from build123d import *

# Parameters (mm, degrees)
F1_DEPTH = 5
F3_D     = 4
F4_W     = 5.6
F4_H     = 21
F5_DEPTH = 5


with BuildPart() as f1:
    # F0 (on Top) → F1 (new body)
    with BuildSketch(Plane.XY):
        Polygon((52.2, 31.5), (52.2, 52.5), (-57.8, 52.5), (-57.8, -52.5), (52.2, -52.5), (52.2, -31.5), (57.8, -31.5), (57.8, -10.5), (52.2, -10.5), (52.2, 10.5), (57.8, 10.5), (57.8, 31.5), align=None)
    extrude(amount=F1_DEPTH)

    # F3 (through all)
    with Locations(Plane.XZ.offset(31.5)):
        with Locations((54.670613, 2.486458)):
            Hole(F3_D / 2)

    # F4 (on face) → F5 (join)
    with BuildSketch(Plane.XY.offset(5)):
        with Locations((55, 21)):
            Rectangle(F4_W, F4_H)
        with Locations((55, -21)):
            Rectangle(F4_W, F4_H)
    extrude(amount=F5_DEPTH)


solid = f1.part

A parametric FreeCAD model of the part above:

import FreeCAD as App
import Part
import Sketcher

V = App.Vector
Q = App.Units.Quantity

doc = App.newDocument("Part")
params = doc.addObject("Spreadsheet::Sheet", "Params")
for row, (alias, value) in enumerate([
    ("sketch1_width", "110 mm"),
    ("sketch1_height", "21 mm"),
    ("sketch1_width2", "5.6 mm"),
    ("pad1_length", "5 mm"),
    ("sketch2_diameter", "4 mm"),
    ("hole_diameter", "4 mm"),
    ("sketch3_height", "21 mm"),
    ("sketch3_width", "5.6 mm"),
    ("pad2_length", "5 mm"),
], start=1):
    params.set(f"A{row}", alias)
    params.set(f"B{row}", "=" + value)
    params.setAlias(f"B{row}", alias)

body = doc.addObject("PartDesign::Body", "Body")

sketch1 = body.newObject("Sketcher::SketchObject", "Sketch")
sketch1.AttachmentSupport = (doc.getObject("XY_Plane"), [""])
sketch1.MapMode = "FlatFace"
sketch1.addGeometry(Part.LineSegment(V(52, 32, 0), V(52, 52, 0)), False)
sketch1.addGeometry(Part.LineSegment(V(52, 52, 0), V(-58, 52, 0)), False)
sketch1.addGeometry(Part.LineSegment(V(-58, 52, 0), V(-58, -52, 0)), False)
sketch1.addGeometry(Part.LineSegment(V(-58, -52, 0), V(52, -52, 0)), False)
sketch1.addGeometry(Part.LineSegment(V(52, -52, 0), V(52, -32, 0)), False)
sketch1.addGeometry(Part.LineSegment(V(52, -32, 0), V(58, -32, 0)), False)
sketch1.addGeometry(Part.LineSegment(V(58, -32, 0), V(58, -10, 0)), False)
sketch1.addGeometry(Part.LineSegment(V(58, -10, 0), V(52, -10, 0)), False)
sketch1.addGeometry(Part.LineSegment(V(52, -10, 0), V(52, 10, 0)), False)
sketch1.addGeometry(Part.LineSegment(V(52, 10, 0), V(58, 10, 0)), False)
sketch1.addGeometry(Part.LineSegment(V(58, 10, 0), V(58, 32, 0)), False)
sketch1.addGeometry(Part.LineSegment(V(58, 32, 0), V(52, 32, 0)), False)
sketch1.addConstraint(Sketcher.Constraint("Coincident", 0, 2, 1, 1))
sketch1.addConstraint(Sketcher.Constraint("Coincident", 1, 2, 2, 1))
sketch1.addConstraint(Sketcher.Constraint("Coincident", 2, 2, 3, 1))
sketch1.addConstraint(Sketcher.Constraint("Coincident", 3, 2, 4, 1))
sketch1.addConstraint(Sketcher.Constraint("Coincident", 4, 2, 5, 1))
sketch1.addConstraint(Sketcher.Constraint("Coincident", 5, 2, 6, 1))
sketch1.addConstraint(Sketcher.Constraint("Coincident", 6, 2, 7, 1))
sketch1.addConstraint(Sketcher.Constraint("Coincident", 7, 2, 8, 1))
sketch1.addConstraint(Sketcher.Constraint("Coincident", 8, 2, 9, 1))
sketch1.addConstraint(Sketcher.Constraint("Coincident", 9, 2, 10, 1))
sketch1.addConstraint(Sketcher.Constraint("Coincident", 10, 2, 11, 1))
sketch1.addConstraint(Sketcher.Constraint("Coincident", 11, 2, 0, 1))
sketch1.addConstraint(Sketcher.Constraint("Vertical", 0))
sketch1.addConstraint(Sketcher.Constraint("Horizontal", 1))
sketch1.addConstraint(Sketcher.Constraint("Vertical", 2))
sketch1.addConstraint(Sketcher.Constraint("Horizontal", 3))
sketch1.addConstraint(Sketcher.Constraint("Vertical", 4))
sketch1.addConstraint(Sketcher.Constraint("Horizontal", 5))
sketch1.addConstraint(Sketcher.Constraint("Vertical", 6))
sketch1.addConstraint(Sketcher.Constraint("Horizontal", 7))
sketch1.addConstraint(Sketcher.Constraint("Vertical", 8))
sketch1.addConstraint(Sketcher.Constraint("Horizontal", 9))
sketch1.addConstraint(Sketcher.Constraint("Vertical", 10))
sketch1.addConstraint(Sketcher.Constraint("Horizontal", 11))
sketch1.addConstraint(Sketcher.Constraint("Symmetric", 0, 2, 3, 2, -1))
sketch1.addConstraint(Sketcher.Constraint("Symmetric", 6, 2, 9, 2, -1))
sketch1.addConstraint(Sketcher.Constraint("Vertical", 4, 2, 7, 2))
sketch1.addConstraint(Sketcher.Constraint("Equal", 0, 4))
sketch1.addConstraint(Sketcher.Constraint("Equal", 4, 6))
sketch1.addConstraint(Sketcher.Constraint("Equal", 6, 8))
sketch1.addConstraint(Sketcher.Constraint("DistanceX", 1, 2, 1, 1, Q("110 mm")))
sketch1.addConstraint(Sketcher.Constraint("DistanceY", 0, 1, 0, 2, Q("21 mm")))
sketch1.addConstraint(Sketcher.Constraint("DistanceX", 5, 1, 5, 2, Q("5.6 mm")))
sketch1.addConstraint(Sketcher.Constraint("DistanceX", -1, 1, 0, 2, Q("52.2 mm")))
sketch1.setExpression("Constraints[30]", "Params.sketch1_width")
sketch1.setExpression("Constraints[31]", "Params.sketch1_height")
sketch1.setExpression("Constraints[32]", "Params.sketch1_width2")
pad1 = body.newObject("PartDesign::Pad", "Pad")
pad1.Profile = sketch1
pad1.setExpression("Length", "Params.pad1_length")

sketch2 = body.newObject("Sketcher::SketchObject", "Sketch001")
sketch2.AttachmentSupport = (doc.getObject("XZ_Plane"), [""])
sketch2.MapMode = "FlatFace"
sketch2.AttachmentOffset = App.Placement(V(0, 0, 31.5), App.Rotation())
sketch2.addGeometry(Part.Circle(V(54.7, 2.5, 0), V(0, 0, 1), 2), False)
sketch2.addConstraint(Sketcher.Constraint("Diameter", 0, Q("4 mm")))
sketch2.addConstraint(Sketcher.Constraint("DistanceX", -1, 1, 0, 3, Q("54.670613 mm")))
sketch2.addConstraint(Sketcher.Constraint("DistanceY", -1, 1, 0, 3, Q("2.486458 mm")))
sketch2.setExpression("Constraints[0]", "Params.sketch2_diameter")
doc.recompute()
hole = body.newObject("PartDesign::Hole", "Hole")
hole.Profile = sketch2
hole.ThreadType = "None"
hole.setExpression("Diameter", "Params.hole_diameter")
hole.DepthType = "ThroughAll"

sketch3 = body.newObject("Sketcher::SketchObject", "Sketch002")
sketch3.AttachmentSupport = (doc.getObject("XY_Plane"), [""])
sketch3.MapMode = "FlatFace"
sketch3.AttachmentOffset = App.Placement(V(0, 0, 5), App.Rotation())
sketch3.addGeometry(Part.LineSegment(V(52, 32, 0), V(52, 10, 0)), False)
sketch3.addGeometry(Part.LineSegment(V(52, 10, 0), V(58, 10, 0)), False)
sketch3.addGeometry(Part.LineSegment(V(58, 10, 0), V(58, 32, 0)), False)
sketch3.addGeometry(Part.LineSegment(V(58, 32, 0), V(52, 32, 0)), False)
sketch3.addGeometry(Part.LineSegment(V(52, -10, 0), V(52, -32, 0)), False)
sketch3.addGeometry(Part.LineSegment(V(52, -32, 0), V(58, -32, 0)), False)
sketch3.addGeometry(Part.LineSegment(V(58, -32, 0), V(58, -10, 0)), False)
sketch3.addGeometry(Part.LineSegment(V(58, -10, 0), V(52, -10, 0)), False)
sketch3.addConstraint(Sketcher.Constraint("Coincident", 0, 2, 1, 1))
sketch3.addConstraint(Sketcher.Constraint("Coincident", 1, 2, 2, 1))
sketch3.addConstraint(Sketcher.Constraint("Coincident", 2, 2, 3, 1))
sketch3.addConstraint(Sketcher.Constraint("Coincident", 3, 2, 0, 1))
sketch3.addConstraint(Sketcher.Constraint("Coincident", 4, 2, 5, 1))
sketch3.addConstraint(Sketcher.Constraint("Coincident", 5, 2, 6, 1))
sketch3.addConstraint(Sketcher.Constraint("Coincident", 6, 2, 7, 1))
sketch3.addConstraint(Sketcher.Constraint("Coincident", 7, 2, 4, 1))
sketch3.addConstraint(Sketcher.Constraint("Vertical", 0))
sketch3.addConstraint(Sketcher.Constraint("Horizontal", 1))
sketch3.addConstraint(Sketcher.Constraint("Vertical", 2))
sketch3.addConstraint(Sketcher.Constraint("Horizontal", 3))
sketch3.addConstraint(Sketcher.Constraint("Vertical", 4))
sketch3.addConstraint(Sketcher.Constraint("Horizontal", 5))
sketch3.addConstraint(Sketcher.Constraint("Vertical", 6))
sketch3.addConstraint(Sketcher.Constraint("Horizontal", 7))
sketch3.addConstraint(Sketcher.Constraint("Symmetric", 3, 2, 4, 2, -1))
sketch3.addConstraint(Sketcher.Constraint("Symmetric", 1, 2, 6, 2, -1))
sketch3.addConstraint(Sketcher.Constraint("DistanceY", 0, 2, 0, 1, Q("21 mm")))
sketch3.addConstraint(Sketcher.Constraint("DistanceX", 1, 1, 1, 2, Q("5.6 mm")))
sketch3.addConstraint(Sketcher.Constraint("DistanceY", 4, 2, 0, 2, Q("42 mm")))
sketch3.addConstraint(Sketcher.Constraint("DistanceX", -1, 1, 0, 2, Q("52.2 mm")))
sketch3.setExpression("Constraints[18]", "Params.sketch3_height")
sketch3.setExpression("Constraints[19]", "Params.sketch3_width")
pad2 = body.newObject("PartDesign::Pad", "Pad001")
pad2.Profile = sketch3
pad2.setExpression("Length", "Params.pad2_length")

doc.recompute()
